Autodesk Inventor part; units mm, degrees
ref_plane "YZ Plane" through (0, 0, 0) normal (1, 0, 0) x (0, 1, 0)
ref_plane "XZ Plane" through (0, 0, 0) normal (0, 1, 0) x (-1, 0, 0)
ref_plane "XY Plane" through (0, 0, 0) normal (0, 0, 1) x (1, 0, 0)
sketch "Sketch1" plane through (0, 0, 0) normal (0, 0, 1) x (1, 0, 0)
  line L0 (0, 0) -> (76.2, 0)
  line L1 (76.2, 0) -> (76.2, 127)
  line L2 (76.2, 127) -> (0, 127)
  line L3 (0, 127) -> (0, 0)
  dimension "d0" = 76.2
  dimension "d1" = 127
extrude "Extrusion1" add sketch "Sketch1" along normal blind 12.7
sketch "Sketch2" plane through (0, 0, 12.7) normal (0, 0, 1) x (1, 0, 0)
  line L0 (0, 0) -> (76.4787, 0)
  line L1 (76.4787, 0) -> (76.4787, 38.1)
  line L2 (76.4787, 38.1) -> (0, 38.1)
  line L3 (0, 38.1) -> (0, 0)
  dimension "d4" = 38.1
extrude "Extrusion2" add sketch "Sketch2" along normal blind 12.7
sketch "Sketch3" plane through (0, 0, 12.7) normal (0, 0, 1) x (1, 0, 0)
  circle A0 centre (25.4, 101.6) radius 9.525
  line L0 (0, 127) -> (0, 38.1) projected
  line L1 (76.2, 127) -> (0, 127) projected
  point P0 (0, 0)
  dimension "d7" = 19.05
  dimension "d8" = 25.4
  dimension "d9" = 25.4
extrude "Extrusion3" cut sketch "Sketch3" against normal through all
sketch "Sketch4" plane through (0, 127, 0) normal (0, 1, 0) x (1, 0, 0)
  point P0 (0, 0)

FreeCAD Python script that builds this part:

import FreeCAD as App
import Part
import Sketcher
from FreeCAD import Vector
Q = App.Units.Quantity

doc = App.newDocument("Part")
body = doc.addObject("PartDesign::Body", "Body")

# Sketch on XY plane
sketch1 = body.newObject("Sketcher::SketchObject", "Sketch")
sketch1.AttachmentSupport = (doc.getObject("XY_Plane"), [""])
sketch1.MapMode = "FlatFace"
sketch1.addGeometry(Part.LineSegment(Vector(0, 127, 0), Vector(0, 0, 0)), False)
sketch1.addGeometry(Part.LineSegment(Vector(0, 0, 0), Vector(76.2, 0, 0)), False)
sketch1.addGeometry(Part.LineSegment(Vector(76.2, 0, 0), Vector(76.2, 127, 0)), False)
sketch1.addGeometry(Part.LineSegment(Vector(76.2, 127, 0), Vector(0, 127, 0)), False)
sketch1.addConstraint(Sketcher.Constraint("Coincident", 0, 2, 1, 1))
sketch1.addConstraint(Sketcher.Constraint("Coincident", 1, 2, 2, 1))
sketch1.addConstraint(Sketcher.Constraint("Coincident", 2, 2, 3, 1))
sketch1.addConstraint(Sketcher.Constraint("Coincident", 3, 2, 0, 1))
sketch1.addConstraint(Sketcher.Constraint("Vertical", 0))
sketch1.addConstraint(Sketcher.Constraint("Horizontal", 1))
sketch1.addConstraint(Sketcher.Constraint("Vertical", 2))
sketch1.addConstraint(Sketcher.Constraint("Horizontal", 3))
sketch1.addConstraint(Sketcher.Constraint("Coincident", 0, 2, -1, 1))
sketch1.addConstraint(Sketcher.Constraint("DistanceX", 1, 1, 1, 2, Q("3 in")))
sketch1.addConstraint(Sketcher.Constraint("DistanceY", 0, 2, 0, 1, Q("5 in")))
pad1 = body.newObject("PartDesign::Pad", "Pad")
pad1.Profile = sketch1
pad1.Length = Q("0.5 in")

# Sketch on XY plane
sketch2 = body.newObject("Sketcher::SketchObject", "Sketch001")
sketch2.AttachmentSupport = (doc.getObject("XY_Plane"), [""])
sketch2.MapMode = "FlatFace"
sketch2.AttachmentOffset = App.Placement(Vector(0, 0, 0.5 * 25.4), App.Rotation())
sketch2.addGeometry(Part.LineSegment(Vector(0, 38.1, 0), Vector(0, 0, 0)), False)
sketch2.addGeometry(Part.LineSegment(Vector(0, 0, 0), Vector(76.4787, 0, 0)), False)
sketch2.addGeometry(Part.LineSegment(Vector(76.4787, 0, 0), Vector(76.4787, 38.1, 0)), False)
sketch2.addGeometry(Part.LineSegment(Vector(76.4787, 38.1, 0), Vector(0, 38.1, 0)), False)
sketch2.addConstraint(Sketcher.Constraint("Coincident", 0, 2, 1, 1))
sketch2.addConstraint(Sketcher.Constraint("Coincident", 1, 2, 2, 1))
sketch2.addConstraint(Sketcher.Constraint("Coincident", 2, 2, 3, 1))
sketch2.addConstraint(Sketcher.Constraint("Coincident", 3, 2, 0, 1))
sketch2.addConstraint(Sketcher.Constraint("Vertical", 0))
sketch2.addConstraint(Sketcher.Constraint("Horizontal", 1))
sketch2.addConstraint(Sketcher.Constraint("Vertical", 2))
sketch2.addConstraint(Sketcher.Constraint("Horizontal", 3))
sketch2.addConstraint(Sketcher.Constraint("Coincident", 0, 2, -1, 1))
sketch2.addConstraint(Sketcher.Constraint("DistanceY", 0, 2, 0, 1, Q("1.5 in")))
sketch2.addConstraint(Sketcher.Constraint("DistanceX", 1, 1, 1, 2, 76.4787))
pad2 = body.newObject("PartDesign::Pad", "Pad001")
pad2.Profile = sketch2
pad2.Length = Q("0.5 in")

# Sketch on XY plane
sketch3 = body.newObject("Sketcher::SketchObject", "Sketch002")
sketch3.AttachmentSupport = (doc.getObject("XY_Plane"), [""])
sketch3.MapMode = "FlatFace"
sketch3.AttachmentOffset = App.Placement(Vector(0, 0, 0.5 * 25.4), App.Rotation())
sketch3.addGeometry(Part.Circle(Vector(25.4, 101.6, 0), Vector(0, 0, 1), 9.525), False)
sketch3.addConstraint(Sketcher.Constraint("Diameter", 0, Q("0.75 in")))
sketch3.addConstraint(Sketcher.Constraint("DistanceX", -1, 1, 0, 3, Q("1 in")))
sketch3.addConstraint(Sketcher.Constraint("DistanceY", -1, 1, 0, 3, Q("4 in")))
pocket1 = body.newObject("PartDesign::Pocket", "Pocket")
pocket1.Profile = sketch3
pocket1.Type = "ThroughAll"

doc.recompute()
